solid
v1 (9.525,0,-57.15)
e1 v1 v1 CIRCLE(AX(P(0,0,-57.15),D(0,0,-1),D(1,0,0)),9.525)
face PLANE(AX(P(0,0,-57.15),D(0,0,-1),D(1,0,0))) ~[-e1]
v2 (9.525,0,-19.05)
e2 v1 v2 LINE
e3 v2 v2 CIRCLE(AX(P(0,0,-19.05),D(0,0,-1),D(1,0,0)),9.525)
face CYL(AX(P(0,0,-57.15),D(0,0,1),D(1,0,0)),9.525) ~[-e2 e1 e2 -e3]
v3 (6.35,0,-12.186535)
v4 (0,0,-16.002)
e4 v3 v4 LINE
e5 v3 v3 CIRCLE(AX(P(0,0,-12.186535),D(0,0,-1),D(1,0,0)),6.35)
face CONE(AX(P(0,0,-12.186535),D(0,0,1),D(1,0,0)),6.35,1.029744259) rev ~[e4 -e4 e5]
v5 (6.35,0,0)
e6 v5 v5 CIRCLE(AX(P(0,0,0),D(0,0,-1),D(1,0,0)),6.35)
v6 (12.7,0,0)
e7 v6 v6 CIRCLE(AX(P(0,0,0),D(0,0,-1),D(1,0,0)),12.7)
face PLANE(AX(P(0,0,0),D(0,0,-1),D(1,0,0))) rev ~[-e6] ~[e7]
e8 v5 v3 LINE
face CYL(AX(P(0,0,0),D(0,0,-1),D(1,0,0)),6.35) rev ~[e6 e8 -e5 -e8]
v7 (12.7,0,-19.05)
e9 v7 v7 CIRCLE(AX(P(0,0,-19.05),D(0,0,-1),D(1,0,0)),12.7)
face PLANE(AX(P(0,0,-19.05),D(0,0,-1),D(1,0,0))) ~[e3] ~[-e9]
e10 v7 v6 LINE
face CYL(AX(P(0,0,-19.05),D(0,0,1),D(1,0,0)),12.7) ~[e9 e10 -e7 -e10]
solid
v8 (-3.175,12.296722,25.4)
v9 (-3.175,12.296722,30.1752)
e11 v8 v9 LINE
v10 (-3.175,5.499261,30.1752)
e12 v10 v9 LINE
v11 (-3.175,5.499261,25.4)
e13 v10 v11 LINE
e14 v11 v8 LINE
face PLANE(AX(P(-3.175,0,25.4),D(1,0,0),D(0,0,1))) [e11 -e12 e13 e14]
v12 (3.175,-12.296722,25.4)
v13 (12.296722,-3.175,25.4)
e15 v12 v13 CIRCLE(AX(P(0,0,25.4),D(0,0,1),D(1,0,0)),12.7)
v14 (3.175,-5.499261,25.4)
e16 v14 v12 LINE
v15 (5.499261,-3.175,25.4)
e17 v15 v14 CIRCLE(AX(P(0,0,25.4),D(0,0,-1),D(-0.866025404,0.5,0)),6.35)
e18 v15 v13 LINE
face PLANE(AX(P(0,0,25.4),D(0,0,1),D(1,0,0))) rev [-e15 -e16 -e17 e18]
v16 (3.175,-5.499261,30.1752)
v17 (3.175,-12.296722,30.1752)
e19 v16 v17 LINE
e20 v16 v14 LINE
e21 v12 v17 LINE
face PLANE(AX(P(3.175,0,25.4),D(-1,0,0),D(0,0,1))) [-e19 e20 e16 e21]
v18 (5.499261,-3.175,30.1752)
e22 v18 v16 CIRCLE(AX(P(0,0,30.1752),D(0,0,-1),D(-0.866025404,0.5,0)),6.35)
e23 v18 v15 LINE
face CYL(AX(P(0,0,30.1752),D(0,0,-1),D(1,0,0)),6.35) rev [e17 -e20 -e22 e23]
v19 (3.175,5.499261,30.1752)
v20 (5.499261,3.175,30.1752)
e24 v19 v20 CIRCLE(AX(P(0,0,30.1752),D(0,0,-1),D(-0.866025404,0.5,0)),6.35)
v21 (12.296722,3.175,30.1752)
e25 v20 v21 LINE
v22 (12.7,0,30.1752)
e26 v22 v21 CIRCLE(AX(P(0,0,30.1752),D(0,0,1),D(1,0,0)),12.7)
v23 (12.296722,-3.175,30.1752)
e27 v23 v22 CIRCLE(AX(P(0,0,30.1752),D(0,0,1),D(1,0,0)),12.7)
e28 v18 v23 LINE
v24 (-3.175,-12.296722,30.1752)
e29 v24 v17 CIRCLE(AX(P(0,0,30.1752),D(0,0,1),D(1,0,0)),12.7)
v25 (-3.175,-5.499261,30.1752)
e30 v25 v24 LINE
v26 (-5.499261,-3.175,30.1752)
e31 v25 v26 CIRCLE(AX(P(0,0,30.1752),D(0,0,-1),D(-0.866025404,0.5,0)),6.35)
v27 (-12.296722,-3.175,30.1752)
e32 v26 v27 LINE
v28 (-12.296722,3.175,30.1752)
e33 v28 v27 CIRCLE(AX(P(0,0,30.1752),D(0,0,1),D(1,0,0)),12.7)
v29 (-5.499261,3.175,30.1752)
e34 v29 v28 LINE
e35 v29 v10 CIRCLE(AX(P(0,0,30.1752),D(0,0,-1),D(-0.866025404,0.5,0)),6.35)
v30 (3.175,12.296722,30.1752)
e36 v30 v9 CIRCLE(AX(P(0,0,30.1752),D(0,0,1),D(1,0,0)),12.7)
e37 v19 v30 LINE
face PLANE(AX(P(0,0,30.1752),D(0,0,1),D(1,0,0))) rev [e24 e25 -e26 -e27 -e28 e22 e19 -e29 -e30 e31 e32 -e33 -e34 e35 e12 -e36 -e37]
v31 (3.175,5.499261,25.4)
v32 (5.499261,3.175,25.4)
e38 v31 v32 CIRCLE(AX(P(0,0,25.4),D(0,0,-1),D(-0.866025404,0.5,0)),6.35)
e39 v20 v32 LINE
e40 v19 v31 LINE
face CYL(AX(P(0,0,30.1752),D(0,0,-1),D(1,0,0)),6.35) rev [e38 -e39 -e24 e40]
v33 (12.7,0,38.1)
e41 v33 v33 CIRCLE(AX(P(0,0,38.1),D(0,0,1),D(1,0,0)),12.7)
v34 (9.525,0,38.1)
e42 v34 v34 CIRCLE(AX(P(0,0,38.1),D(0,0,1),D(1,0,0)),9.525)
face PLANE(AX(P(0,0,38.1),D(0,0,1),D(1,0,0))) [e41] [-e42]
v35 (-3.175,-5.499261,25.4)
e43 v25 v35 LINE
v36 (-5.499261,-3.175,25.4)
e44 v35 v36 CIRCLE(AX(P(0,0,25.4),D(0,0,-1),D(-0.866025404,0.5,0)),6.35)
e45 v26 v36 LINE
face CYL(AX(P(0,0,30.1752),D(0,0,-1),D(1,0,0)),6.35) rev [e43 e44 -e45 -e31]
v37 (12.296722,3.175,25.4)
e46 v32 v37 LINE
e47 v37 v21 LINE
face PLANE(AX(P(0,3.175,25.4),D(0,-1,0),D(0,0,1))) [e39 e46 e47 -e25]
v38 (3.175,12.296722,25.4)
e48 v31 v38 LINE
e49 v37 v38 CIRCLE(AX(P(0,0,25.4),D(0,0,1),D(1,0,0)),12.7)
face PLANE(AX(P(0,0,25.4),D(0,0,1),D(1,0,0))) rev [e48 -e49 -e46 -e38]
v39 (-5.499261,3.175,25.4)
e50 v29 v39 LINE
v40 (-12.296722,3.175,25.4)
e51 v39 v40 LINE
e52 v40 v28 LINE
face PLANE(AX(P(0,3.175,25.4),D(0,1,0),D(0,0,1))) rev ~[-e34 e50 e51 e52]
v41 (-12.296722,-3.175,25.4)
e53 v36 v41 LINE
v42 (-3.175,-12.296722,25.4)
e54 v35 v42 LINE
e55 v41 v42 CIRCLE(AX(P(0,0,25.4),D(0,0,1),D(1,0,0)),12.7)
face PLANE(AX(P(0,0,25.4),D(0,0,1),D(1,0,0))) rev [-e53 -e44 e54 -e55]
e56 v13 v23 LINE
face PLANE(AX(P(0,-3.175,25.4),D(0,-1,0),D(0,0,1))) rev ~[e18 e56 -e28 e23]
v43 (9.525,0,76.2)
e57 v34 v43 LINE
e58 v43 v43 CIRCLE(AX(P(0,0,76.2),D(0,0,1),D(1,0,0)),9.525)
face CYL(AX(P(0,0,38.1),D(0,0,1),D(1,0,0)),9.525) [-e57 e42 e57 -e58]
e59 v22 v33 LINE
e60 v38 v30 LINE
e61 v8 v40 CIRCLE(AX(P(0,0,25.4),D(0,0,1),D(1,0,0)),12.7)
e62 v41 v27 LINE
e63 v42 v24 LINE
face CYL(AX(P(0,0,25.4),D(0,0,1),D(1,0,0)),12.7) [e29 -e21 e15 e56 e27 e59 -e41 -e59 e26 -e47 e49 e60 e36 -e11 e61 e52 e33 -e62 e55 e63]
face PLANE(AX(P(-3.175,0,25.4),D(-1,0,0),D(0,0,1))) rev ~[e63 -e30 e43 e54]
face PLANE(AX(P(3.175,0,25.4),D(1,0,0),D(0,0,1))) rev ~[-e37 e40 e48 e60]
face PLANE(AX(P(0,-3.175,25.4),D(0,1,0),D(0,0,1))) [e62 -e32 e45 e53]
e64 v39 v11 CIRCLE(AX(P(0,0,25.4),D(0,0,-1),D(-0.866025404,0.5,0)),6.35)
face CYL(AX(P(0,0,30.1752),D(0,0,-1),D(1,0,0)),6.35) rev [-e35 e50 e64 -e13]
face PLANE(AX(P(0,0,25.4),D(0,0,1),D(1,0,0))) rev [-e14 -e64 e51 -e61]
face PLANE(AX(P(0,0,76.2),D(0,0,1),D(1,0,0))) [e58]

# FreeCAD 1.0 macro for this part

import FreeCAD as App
import Part
import Sketcher
from FreeCAD import Vector
Q = App.Units.Quantity

doc = App.newDocument("Part")
params = doc.addObject("Spreadsheet::Sheet", "Params")
for row, (alias, value) in enumerate([
    ("sketch1_height", "1.5 in"),
    ("sketch1_width", "0.25 in"),
    ("sketch1_height2", "1.62 in"),
    ("sketch1_height3", "0.75 in"),
    ("sketch1_width2", "0.375 in"),
    ("revolution_angle", "360 deg"),
    ("sketch2_height", "0.5 in"),
    ("sketch2_height2", "1.5 in"),
    ("sketch2_width", "0.25 in"),
    ("sketch2_width2", "0.125 in"),
    ("sketch2_height3", "1.812 in"),
    ("revolution2_angle", "360 deg"),
    ("sketch3_width", "0.25 in"),
    ("sketch3_height", "0.188 in"),
    ("sketch4_width", "0.25 in"),
    ("sketch4_height", "0.188 in"),
], start=1):
    params.set(f"A{row}", alias)
    params.set(f"B{row}", "=" + value)
    params.setAlias(f"B{row}", alias)

body = doc.addObject("PartDesign::Body", "Body")

# Sketch on XZ plane
sketch1 = body.newObject("Sketcher::SketchObject", "Sketch")
sketch1.AttachmentSupport = (doc.getObject("XZ_Plane"), [""])
sketch1.MapMode = "FlatFace"
sketch1.addGeometry([
    Part.LineSegment(Vector(12.7, 0, 0), Vector(6.3, 0, 0)),  # 0
    Part.LineSegment(Vector(6.3, 0, 0), Vector(6.3, -12.2, 0)),  # 1
    Part.LineSegment(Vector(6.3, -12.2, 0), Vector(0, -16, 0)),  # 2
    Part.LineSegment(Vector(0, -16, 0), Vector(0, -57.1, 0)),  # 3
    Part.LineSegment(Vector(0, -57.1, 0), Vector(9.5, -57.1, 0)),  # 4
    Part.LineSegment(Vector(9.5, -57.1, 0), Vector(9.5, -19.1, 0)),  # 5
    Part.LineSegment(Vector(9.5, -19.1, 0), Vector(12.7, -19.1, 0)),  # 6
    Part.LineSegment(Vector(12.7, -19.1, 0), Vector(12.7, 0, 0)),  # 7
], False)
sketch1.addConstraint([
    Sketcher.Constraint("Coincident", 0, 2, 1, 1),
    Sketcher.Constraint("Coincident", 1, 2, 2, 1),
    Sketcher.Constraint("Coincident", 2, 2, 3, 1),
    Sketcher.Constraint("Coincident", 3, 2, 4, 1),
    Sketcher.Constraint("Coincident", 4, 2, 5, 1),
    Sketcher.Constraint("Coincident", 5, 2, 6, 1),
    Sketcher.Constraint("Coincident", 6, 2, 7, 1),
    Sketcher.Constraint("Coincident", 7, 2, 0, 1),
    Sketcher.Constraint("Horizontal", 0),
    Sketcher.Constraint("Vertical", 1),
    Sketcher.Constraint("Vertical", 3),
    Sketcher.Constraint("Horizontal", 4),
    Sketcher.Constraint("Vertical", 5),
    Sketcher.Constraint("Horizontal", 6),
    Sketcher.Constraint("Vertical", 7),
    Sketcher.Constraint("PointOnObject", 0, 2, -1),
    Sketcher.Constraint("PointOnObject", 2, 2, -2),
    Sketcher.Constraint("DistanceY", 5, 1, 5, 2, Q("1.5 in")),
    Sketcher.Constraint("Angle", 2, Q("-149 deg")),
    Sketcher.Constraint("DistanceX", 0, 2, 0, 1, Q("0.25 in")),
    Sketcher.Constraint("DistanceY", 3, 2, 3, 1, Q("1.62 in")),
    Sketcher.Constraint("DistanceY", 7, 1, 7, 2, Q("0.75 in")),
    Sketcher.Constraint("DistanceX", -1, 1, 6, 2, Q("0.5 in")),
    Sketcher.Constraint("DistanceX", 4, 1, 4, 2, Q("0.375 in")),
])
sketch1.setExpression("Constraints[17]", "Params.sketch1_height")
sketch1.setExpression("Constraints[19]", "Params.sketch1_width")
sketch1.setExpression("Constraints[20]", "Params.sketch1_height2")
sketch1.setExpression("Constraints[21]", "Params.sketch1_height3")
sketch1.setExpression("Constraints[23]", "Params.sketch1_width2")
revolution = body.newObject("PartDesign::Revolution", "Revolution")
revolution.Profile = sketch1
revolution.ReferenceAxis = (sketch1, ["V_Axis"])
revolution.setExpression("Angle", "Params.revolution_angle")
body2 = doc.addObject("PartDesign::Body", "Body001")

# Sketch on XZ plane
sketch2 = body2.newObject("Sketcher::SketchObject", "Sketch001")
sketch2.AttachmentSupport = (doc.getObject("XZ_Plane001"), [""])
sketch2.MapMode = "FlatFace"
sketch2.addGeometry([
    Part.LineSegment(Vector(0, 76.2, 0), Vector(0, 30.2, 0)),  # 0
    Part.LineSegment(Vector(0, 30.2, 0), Vector(6.3, 30.2, 0)),  # 1
    Part.LineSegment(Vector(6.3, 30.2, 0), Vector(6.3, 25.4, 0)),  # 2
    Part.LineSegment(Vector(6.3, 25.4, 0), Vector(12.7, 25.4, 0)),  # 3
    Part.LineSegment(Vector(12.7, 25.4, 0), Vector(12.7, 38.1, 0)),  # 4
    Part.LineSegment(Vector(12.7, 38.1, 0), Vector(9.5, 38.1, 0)),  # 5
    Part.LineSegment(Vector(9.5, 38.1, 0), Vector(9.5, 76.2, 0)),  # 6
    Part.LineSegment(Vector(9.5, 76.2, 0), Vector(0, 76.2, 0)),  # 7
], False)
sketch2.addConstraint([
    Sketcher.Constraint("Coincident", 0, 2, 1, 1),
    Sketcher.Constraint("Coincident", 1, 2, 2, 1),
    Sketcher.Constraint("Coincident", 2, 2, 3, 1),
    Sketcher.Constraint("Coincident", 3, 2, 4, 1),
    Sketcher.Constraint("Coincident", 4, 2, 5, 1),
    Sketcher.Constraint("Coincident", 5, 2, 6, 1),
    Sketcher.Constraint("Coincident", 6, 2, 7, 1),
    Sketcher.Constraint("Coincident", 7, 2, 0, 1),
    Sketcher.Constraint("Vertical", 0),
    Sketcher.Constraint("Horizontal", 1),
    Sketcher.Constraint("Vertical", 2),
    Sketcher.Constraint("Horizontal", 3),
    Sketcher.Constraint("Vertical", 4),
    Sketcher.Constraint("Horizontal", 5),
    Sketcher.Constraint("Vertical", 6),
    Sketcher.Constraint("Horizontal", 7),
    Sketcher.Constraint("PointOnObject", 0, 2, -2),
    Sketcher.Constraint("Equal", 1, 3),
    Sketcher.Constraint("DistanceY", 4, 1, 4, 2, Q("0.5 in")),
    Sketcher.Constraint("DistanceY", 6, 1, 6, 2, Q("1.5 in")),
    Sketcher.Constraint("DistanceY", -1, 1, 2, 2, Q("1 in")),
    Sketcher.Constraint("DistanceX", 1, 1, 1, 2, Q("0.25 in")),
    Sketcher.Constraint("DistanceX", 5, 2, 5, 1, Q("0.125 in")),
    Sketcher.Constraint("DistanceY", 0, 2, 0, 1, Q("1.812 in")),
])
sketch2.setExpression("Constraints[18]", "Params.sketch2_height")
sketch2.setExpression("Constraints[19]", "Params.sketch2_height2")
sketch2.setExpression("Constraints[21]", "Params.sketch2_width")
sketch2.setExpression("Constraints[22]", "Params.sketch2_width2")
sketch2.setExpression("Constraints[23]", "Params.sketch2_height3")
revolution2 = body2.newObject("PartDesign::Revolution", "Revolution001")
revolution2.Profile = sketch2
revolution2.ReferenceAxis = (sketch2, ["V_Axis"])
revolution2.setExpression("Angle", "Params.revolution2_angle")

# Sketch on YZ plane
sketch3 = body2.newObject("Sketcher::SketchObject", "Sketch002")
sketch3.AttachmentSupport = (doc.getObject("YZ_Plane001"), [""])
sketch3.MapMode = "FlatFace"
sketch3.addGeometry([
    Part.LineSegment(Vector(-3.2, 30.2, 0), Vector(-3.2, 25.4, 0)),
    Part.LineSegment(Vector(-3.2, 25.4, 0), Vector(3.2, 25.4, 0)),
    Part.LineSegment(Vector(3.2, 25.4, 0), Vector(3.2, 30.2, 0)),
    Part.LineSegment(Vector(3.2, 30.2, 0), Vector(-3.2, 30.2, 0)),
], False)
sketch3.addConstraint([
    Sketcher.Constraint("Coincident", 0, 2, 1, 1),
    Sketcher.Constraint("Coincident", 1, 2, 2, 1),
    Sketcher.Constraint("Coincident", 2, 2, 3, 1),
    Sketcher.Constraint("Coincident", 3, 2, 0, 1),
    Sketcher.Constraint("Vertical", 0),
    Sketcher.Constraint("Horizontal", 1),
    Sketcher.Constraint("Vertical", 2),
    Sketcher.Constraint("Horizontal", 3),
    Sketcher.Constraint("DistanceY", -1, 1, 0, 2, Q("1 in")),
    Sketcher.Constraint("DistanceX", 1, 1, 1, 2, Q("0.25 in")),
    Sketcher.Constraint("DistanceY", 0, 2, 0, 1, Q("0.188 in")),
    Sketcher.Constraint("DistanceX", 0, 2, -1, 1, Q("0.125 in")),
])
sketch3.setExpression("Constraints[9]", "Params.sketch3_width")
sketch3.setExpression("Constraints[10]", "Params.sketch3_height")
pocket1 = body2.newObject("PartDesign::Pocket", "Pocket")
pocket1.Profile = sketch3
pocket1.Type = "ThroughAll"
pocket1.Midplane = True

# Sketch on XZ plane
sketch4 = body2.newObject("Sketcher::SketchObject", "Sketch003")
sketch4.AttachmentSupport = (doc.getObject("XZ_Plane001"), [""])
sketch4.MapMode = "FlatFace"
sketch4.addGeometry([
    Part.LineSegment(Vector(-3.2, 30.2, 0), Vector(-3.2, 25.4, 0)),
    Part.LineSegment(Vector(-3.2, 25.4, 0), Vector(3.2, 25.4, 0)),
    Part.LineSegment(Vector(3.2, 25.4, 0), Vector(3.2, 30.2, 0)),
    Part.LineSegment(Vector(3.2, 30.2, 0), Vector(-3.2, 30.2, 0)),
], False)
sketch4.addConstraint([
    Sketcher.Constraint("Coincident", 0, 2, 1, 1),
    Sketcher.Constraint("Coincident", 1, 2, 2, 1),
    Sketcher.Constraint("Coincident", 2, 2, 3, 1),
    Sketcher.Constraint("Coincident", 3, 2, 0, 1),
    Sketcher.Constraint("Vertical", 0),
    Sketcher.Constraint("Horizontal", 1),
    Sketcher.Constraint("Vertical", 2),
    Sketcher.Constraint("Horizontal", 3),
    Sketcher.Constraint("DistanceY", -1, 1, 0, 2, Q("1 in")),
    Sketcher.Constraint("DistanceX", 1, 1, 1, 2, Q("0.25 in")),
    Sketcher.Constraint("DistanceY", 0, 2, 0, 1, Q("0.188 in")),
    Sketcher.Constraint("DistanceX", 0, 2, -1, 1, Q("0.125 in")),
])
sketch4.setExpression("Constraints[9]", "Params.sketch4_width")
sketch4.setExpression("Constraints[10]", "Params.sketch4_height")
pocket2 = body2.newObject("PartDesign::Pocket", "Pocket001")
pocket2.Profile = sketch4
pocket2.Type = "ThroughAll"
pocket2.Midplane = True

doc.recompute()
